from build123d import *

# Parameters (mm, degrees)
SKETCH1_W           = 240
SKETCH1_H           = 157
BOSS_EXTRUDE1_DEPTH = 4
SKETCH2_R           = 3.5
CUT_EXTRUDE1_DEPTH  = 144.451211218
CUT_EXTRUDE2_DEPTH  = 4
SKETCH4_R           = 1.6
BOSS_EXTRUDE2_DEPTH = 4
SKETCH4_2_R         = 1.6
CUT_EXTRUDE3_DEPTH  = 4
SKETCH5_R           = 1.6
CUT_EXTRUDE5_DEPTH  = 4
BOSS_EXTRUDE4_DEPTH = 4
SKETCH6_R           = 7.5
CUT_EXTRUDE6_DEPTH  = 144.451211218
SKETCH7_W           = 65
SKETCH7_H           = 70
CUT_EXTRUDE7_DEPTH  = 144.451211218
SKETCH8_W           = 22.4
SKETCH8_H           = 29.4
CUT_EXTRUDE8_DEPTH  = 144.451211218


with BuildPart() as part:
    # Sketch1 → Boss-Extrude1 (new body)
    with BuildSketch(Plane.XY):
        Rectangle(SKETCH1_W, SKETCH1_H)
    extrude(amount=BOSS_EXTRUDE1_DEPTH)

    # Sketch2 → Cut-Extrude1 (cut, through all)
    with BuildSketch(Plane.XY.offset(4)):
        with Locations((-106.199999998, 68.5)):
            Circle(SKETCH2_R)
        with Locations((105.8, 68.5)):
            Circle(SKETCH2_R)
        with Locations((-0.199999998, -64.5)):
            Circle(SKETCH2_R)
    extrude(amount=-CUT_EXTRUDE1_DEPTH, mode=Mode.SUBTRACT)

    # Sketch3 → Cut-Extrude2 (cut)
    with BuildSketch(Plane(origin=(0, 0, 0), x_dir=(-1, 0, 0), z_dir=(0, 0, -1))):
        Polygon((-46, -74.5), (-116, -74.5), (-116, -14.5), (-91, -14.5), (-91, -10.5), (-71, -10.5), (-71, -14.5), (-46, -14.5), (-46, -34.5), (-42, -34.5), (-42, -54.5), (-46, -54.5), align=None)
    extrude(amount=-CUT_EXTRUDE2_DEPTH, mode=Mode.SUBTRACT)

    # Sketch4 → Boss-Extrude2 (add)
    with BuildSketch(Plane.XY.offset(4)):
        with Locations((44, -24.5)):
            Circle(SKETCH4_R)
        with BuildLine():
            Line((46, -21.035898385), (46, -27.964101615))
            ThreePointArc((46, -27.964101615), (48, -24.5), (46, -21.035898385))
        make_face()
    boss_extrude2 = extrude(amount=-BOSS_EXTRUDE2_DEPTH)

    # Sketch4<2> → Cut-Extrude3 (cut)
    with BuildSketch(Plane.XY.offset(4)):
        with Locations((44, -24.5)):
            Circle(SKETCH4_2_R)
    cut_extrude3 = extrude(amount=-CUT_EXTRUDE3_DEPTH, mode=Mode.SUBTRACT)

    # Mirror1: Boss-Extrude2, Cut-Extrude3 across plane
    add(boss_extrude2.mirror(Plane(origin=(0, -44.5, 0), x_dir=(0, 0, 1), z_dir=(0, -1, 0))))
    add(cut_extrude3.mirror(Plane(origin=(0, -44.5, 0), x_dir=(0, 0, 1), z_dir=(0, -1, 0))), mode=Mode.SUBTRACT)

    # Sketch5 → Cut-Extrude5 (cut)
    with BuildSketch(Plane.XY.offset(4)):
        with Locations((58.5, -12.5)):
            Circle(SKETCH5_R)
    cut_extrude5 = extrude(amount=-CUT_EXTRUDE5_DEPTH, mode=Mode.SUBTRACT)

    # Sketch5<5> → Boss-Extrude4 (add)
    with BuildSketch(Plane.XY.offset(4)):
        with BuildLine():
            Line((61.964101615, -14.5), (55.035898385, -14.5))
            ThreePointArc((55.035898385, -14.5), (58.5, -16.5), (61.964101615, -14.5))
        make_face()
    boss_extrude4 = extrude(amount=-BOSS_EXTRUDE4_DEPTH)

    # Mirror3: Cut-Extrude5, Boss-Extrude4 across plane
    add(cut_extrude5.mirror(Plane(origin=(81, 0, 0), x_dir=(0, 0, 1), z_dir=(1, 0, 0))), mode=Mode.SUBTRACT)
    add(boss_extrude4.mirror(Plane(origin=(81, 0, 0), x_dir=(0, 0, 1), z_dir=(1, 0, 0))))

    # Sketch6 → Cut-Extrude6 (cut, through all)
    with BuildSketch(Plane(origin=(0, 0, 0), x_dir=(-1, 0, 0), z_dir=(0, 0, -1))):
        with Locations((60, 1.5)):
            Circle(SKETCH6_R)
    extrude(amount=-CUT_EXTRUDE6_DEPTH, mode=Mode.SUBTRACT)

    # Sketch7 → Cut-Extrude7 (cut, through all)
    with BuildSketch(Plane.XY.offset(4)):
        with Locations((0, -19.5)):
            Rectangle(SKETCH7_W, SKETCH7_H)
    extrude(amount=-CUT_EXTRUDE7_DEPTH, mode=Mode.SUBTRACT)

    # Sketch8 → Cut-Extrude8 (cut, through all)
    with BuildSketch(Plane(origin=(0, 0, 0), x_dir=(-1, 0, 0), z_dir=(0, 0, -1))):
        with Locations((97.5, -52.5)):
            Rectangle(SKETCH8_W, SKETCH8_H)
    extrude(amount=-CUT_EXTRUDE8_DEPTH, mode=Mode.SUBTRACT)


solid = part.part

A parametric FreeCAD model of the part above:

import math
import FreeCAD as App
import Part
import Sketcher

V = App.Vector
Q = App.Units.Quantity

doc = App.newDocument("Part")
body = doc.addObject("PartDesign::Body", "Body")

sketch1 = body.newObject("Sketcher::SketchObject", "Sketch")
sketch1.AttachmentSupport = (doc.getObject("XY_Plane"), [""])
sketch1.MapMode = "FlatFace"
sketch1.addGeometry(Part.LineSegment(V(-120, 78, 0), V(-120, -78, 0)), False)
sketch1.addGeometry(Part.LineSegment(V(-120, -78, 0), V(120, -78, 0)), False)
sketch1.addGeometry(Part.LineSegment(V(120, -78, 0), V(120, 78, 0)), False)
sketch1.addGeometry(Part.LineSegment(V(120, 78, 0), V(-120, 78, 0)), False)
sketch1.addConstraint(Sketcher.Constraint("Coincident", 0, 2, 1, 1))
sketch1.addConstraint(Sketcher.Constraint("Coincident", 1, 2, 2, 1))
sketch1.addConstraint(Sketcher.Constraint("Coincident", 2, 2, 3, 1))
sketch1.addConstraint(Sketcher.Constraint("Coincident", 3, 2, 0, 1))
sketch1.addConstraint(Sketcher.Constraint("Vertical", 0))
sketch1.addConstraint(Sketcher.Constraint("Horizontal", 1))
sketch1.addConstraint(Sketcher.Constraint("Vertical", 2))
sketch1.addConstraint(Sketcher.Constraint("Horizontal", 3))
sketch1.addConstraint(Sketcher.Constraint("Symmetric", 0, 2, 2, 2, -1, 1))
sketch1.addConstraint(Sketcher.Constraint("DistanceX", 1, 1, 1, 2, Q("240 mm")))
sketch1.addConstraint(Sketcher.Constraint("DistanceY", 0, 2, 0, 1, Q("157 mm")))
pad1 = body.newObject("PartDesign::Pad", "Pad")
pad1.Profile = sketch1
pad1.Length = 4

sketch2 = body.newObject("Sketcher::SketchObject", "Sketch001")
sketch2.AttachmentSupport = (doc.getObject("XY_Plane"), [""])
sketch2.MapMode = "FlatFace"
sketch2.AttachmentOffset = App.Placement(V(0, 0, 4), App.Rotation())
sketch2.addGeometry(Part.Circle(V(-106.2, 68.5, 0), V(0, 0, 1), 3.5), False)
sketch2.addGeometry(Part.Circle(V(105.8, 68.5, 0), V(0, 0, 1), 3.5), False)
sketch2.addGeometry(Part.Circle(V(-0.2, -64.5, 0), V(0, 0, 1), 3.5), False)
sketch2.addConstraint(Sketcher.Constraint("Equal", 0, 1))
sketch2.addConstraint(Sketcher.Constraint("Equal", 1, 2))
sketch2.addConstraint(Sketcher.Constraint("Horizontal", 0, 3, 1, 3))
sketch2.addConstraint(Sketcher.Constraint("Diameter", 0, Q("7 mm")))
sketch2.addConstraint(Sketcher.Constraint("DistanceX", 0, 3, 1, 3, Q("212 mm")))
sketch2.addConstraint(Sketcher.Constraint("DistanceX", 2, 3, 1, 3, Q("106 mm")))
sketch2.addConstraint(Sketcher.Constraint("DistanceY", 2, 3, 1, 3, Q("133 mm")))
sketch2.addConstraint(Sketcher.Constraint("DistanceX", 0, 3, -1, 1, Q("106.2 mm")))
sketch2.addConstraint(Sketcher.Constraint("DistanceY", -1, 1, 0, 3, Q("68.5 mm")))
pocket1 = body.newObject("PartDesign::Pocket", "Pocket")
pocket1.Profile = sketch2
pocket1.Type = "ThroughAll"

sketch3 = body.newObject("Sketcher::SketchObject", "Sketch002")
sketch3.AttachmentSupport = (doc.getObject("XY_Plane"), [""])
sketch3.MapMode = "FlatFace"
sketch3.addGeometry(Part.LineSegment(V(116, -74.5, 0), V(46, -74.5, 0)), False)
sketch3.addGeometry(Part.LineSegment(V(46, -74.5, 0), V(46, -54.5, 0)), False)
sketch3.addGeometry(Part.LineSegment(V(46, -54.5, 0), V(42, -54.5, 0)), False)
sketch3.addGeometry(Part.LineSegment(V(42, -54.5, 0), V(42, -34.5, 0)), False)
sketch3.addGeometry(Part.LineSegment(V(42, -34.5, 0), V(46, -34.5, 0)), False)
sketch3.addGeometry(Part.LineSegment(V(46, -34.5, 0), V(46, -14.5, 0)), False)
sketch3.addGeometry(Part.LineSegment(V(46, -14.5, 0), V(71, -14.5, 0)), False)
sketch3.addGeometry(Part.LineSegment(V(71, -14.5, 0), V(71, -10.5, 0)), False)
sketch3.addGeometry(Part.LineSegment(V(71, -10.5, 0), V(91, -10.5, 0)), False)
sketch3.addGeometry(Part.LineSegment(V(91, -10.5, 0), V(91, -14.5, 0)), False)
sketch3.addGeometry(Part.LineSegment(V(91, -14.5, 0), V(116, -14.5, 0)), False)
sketch3.addGeometry(Part.LineSegment(V(116, -14.5, 0), V(116, -74.5, 0)), False)
sketch3.addConstraint(Sketcher.Constraint("Coincident", 0, 2, 1, 1))
sketch3.addConstraint(Sketcher.Constraint("Coincident", 1, 2, 2, 1))
sketch3.addConstraint(Sketcher.Constraint("Coincident", 2, 2, 3, 1))
sketch3.addConstraint(Sketcher.Constraint("Coincident", 3, 2, 4, 1))
sketch3.addConstraint(Sketcher.Constraint("Coincident", 4, 2, 5, 1))
sketch3.addConstraint(Sketcher.Constraint("Coincident", 5, 2, 6, 1))
sketch3.addConstraint(Sketcher.Constraint("Coincident", 6, 2, 7, 1))
sketch3.addConstraint(Sketcher.Constraint("Coincident", 7, 2, 8, 1))
sketch3.addConstraint(Sketcher.Constraint("Coincident", 8, 2, 9, 1))
sketch3.addConstraint(Sketcher.Constraint("Coincident", 9, 2, 10, 1))
sketch3.addConstraint(Sketcher.Constraint("Coincident", 10, 2, 11, 1))
sketch3.addConstraint(Sketcher.Constraint("Coincident", 11, 2, 0, 1))
sketch3.addConstraint(Sketcher.Constraint("Horizontal", 0))
sketch3.addConstraint(Sketcher.Constraint("Vertical", 1))
sketch3.addConstraint(Sketcher.Constraint("Horizontal", 2))
sketch3.addConstraint(Sketcher.Constraint("Vertical", 3))
sketch3.addConstraint(Sketcher.Constraint("Horizontal", 4))
sketch3.addConstraint(Sketcher.Constraint("Vertical", 5))
sketch3.addConstraint(Sketcher.Constraint("Horizontal", 6))
sketch3.addConstraint(Sketcher.Constraint("Vertical", 7))
sketch3.addConstraint(Sketcher.Constraint("Horizontal", 8))
sketch3.addConstraint(Sketcher.Constraint("Vertical", 9))
sketch3.addConstraint(Sketcher.Constraint("Horizontal", 10))
sketch3.addConstraint(Sketcher.Constraint("Vertical", 11))
sketch3.addConstraint(Sketcher.Constraint("Horizontal", 6, 2, 9, 2))
sketch3.addConstraint(Sketcher.Constraint("Vertical", 1, 2, 4, 2))
sketch3.addConstraint(Sketcher.Constraint("Equal", 6, 10))
sketch3.addConstraint(Sketcher.Constraint("Equal", 8, 1))
sketch3.addConstraint(Sketcher.Constraint("Equal", 1, 3))
sketch3.addConstraint(Sketcher.Constraint("Equal", 3, 5))
sketch3.addConstraint(Sketcher.Constraint("Equal", 4, 7))
sketch3.addConstraint(Sketcher.Constraint("DistanceX", 0, 2, 0, 1, Q("70 mm")))
sketch3.addConstraint(Sketcher.Constraint("DistanceX", 2, 2, 2, 1, Q("4 mm")))
sketch3.addConstraint(Sketcher.Constraint("DistanceX", 6, 1, 6, 2, Q("25 mm")))
sketch3.addConstraint(Sketcher.Constraint("DistanceX", -1, 1, 0, 2, Q("46 mm")))
sketch3.addConstraint(Sketcher.Constraint("DistanceY", 0, 2, -1, 1, Q("74.5 mm")))
pocket2 = body.newObject("PartDesign::Pocket", "Pocket001")
pocket2.Profile = sketch3
pocket2.Length = 4
pocket2.Reversed = True

sketch4 = body.newObject("Sketcher::SketchObject", "Sketch003")
sketch4.AttachmentSupport = (doc.getObject("XY_Plane"), [""])
sketch4.MapMode = "FlatFace"
sketch4.AttachmentOffset = App.Placement(V(0, 0, 4), App.Rotation())
sketch4.addGeometry(Part.Circle(V(44, -24.5, 0), V(0, 0, 1), 1.6), False)
sketch4.addGeometry(Part.LineSegment(V(46, -21, 0), V(46, -28, 0)), False)
sketch4.addGeometry(Part.ArcOfCircle(Part.Circle(V(44, -24.5, 0), V(0, 0, 1), 4), math.radians(-60), math.radians(60)), False)
sketch4.addConstraint(Sketcher.Constraint("Coincident", 1, 1, 2, 2))
sketch4.addConstraint(Sketcher.Constraint("Coincident", 2, 1, 1, 2))
sketch4.addConstraint(Sketcher.Constraint("Vertical", 1))
sketch4.addConstraint(Sketcher.Constraint("Coincident", 2, 3, 0, 3))
sketch4.addConstraint(Sketcher.Constraint("Radius", 2, Q("4 mm")))
sketch4.addConstraint(Sketcher.Constraint("Diameter", 0, Q("3.2 mm")))
sketch4.addConstraint(Sketcher.Constraint("DistanceX", -1, 1, 0, 3, Q("44 mm")))
sketch4.addConstraint(Sketcher.Constraint("DistanceX", -1, 1, 1, 1, Q("46 mm")))
sketch4.addConstraint(Sketcher.Constraint("DistanceY", 0, 3, -1, 1, Q("24.5 mm")))
pad2 = body.newObject("PartDesign::Pad", "Pad001")
pad2.Profile = sketch4
pad2.Length = 4
pad2.Reversed = True

sketch5 = body.newObject("Sketcher::SketchObject", "Sketch004")
sketch5.AttachmentSupport = (doc.getObject("XY_Plane"), [""])
sketch5.MapMode = "FlatFace"
sketch5.AttachmentOffset = App.Placement(V(0, 0, 4), App.Rotation())
sketch5.addGeometry(Part.Circle(V(44, -24.5, 0), V(0, 0, 1), 1.6), False)
sketch5.addConstraint(Sketcher.Constraint("Diameter", 0, Q("3.2 mm")))
sketch5.addConstraint(Sketcher.Constraint("DistanceX", -1, 1, 0, 3, Q("44 mm")))
sketch5.addConstraint(Sketcher.Constraint("DistanceY", 0, 3, -1, 1, Q("24.5 mm")))
pocket3 = body.newObject("PartDesign::Pocket", "Pocket002")
pocket3.Profile = sketch5
pocket3.Length = 4
doc.recompute()

datumplane = body.newObject("PartDesign::Plane", "DatumPlane")
datumplane.AttachmentSupport = (doc.getObject("XZ_Plane"), [""])
datumplane.MapMode = "FlatFace"
datumplane.AttachmentOffset = App.Placement(V(0, 0, 44.5), App.Rotation())
mirrored = body.newObject("PartDesign::Mirrored", "Mirrored")
mirrored.Originals = [pad2, pocket3]
mirrored.MirrorPlane = (datumplane, [""])
body.Tip = mirrored

sketch6 = body.newObject("Sketcher::SketchObject", "Sketch005")
sketch6.AttachmentSupport = (doc.getObject("XY_Plane"), [""])
sketch6.MapMode = "FlatFace"
sketch6.AttachmentOffset = App.Placement(V(0, 0, 4), App.Rotation())
sketch6.addGeometry(Part.Circle(V(58.5, -12.5, 0), V(0, 0, 1), 1.6), False)
sketch6.addConstraint(Sketcher.Constraint("Diameter", 0, Q("3.2 mm")))
sketch6.addConstraint(Sketcher.Constraint("DistanceX", -1, 1, 0, 3, Q("58.5 mm")))
sketch6.addConstraint(Sketcher.Constraint("DistanceY", 0, 3, -1, 1, Q("12.5 mm")))
pocket4 = body.newObject("PartDesign::Pocket", "Pocket003")
pocket4.Profile = sketch6
pocket4.Length = 4

sketch7 = body.newObject("Sketcher::SketchObject", "Sketch006")
sketch7.AttachmentSupport = (doc.getObject("XY_Plane"), [""])
sketch7.MapMode = "FlatFace"
sketch7.AttachmentOffset = App.Placement(V(0, 0, 4), App.Rotation())
sketch7.addGeometry(Part.LineSegment(V(62, -14.5, 0), V(55, -14.5, 0)), False)
sketch7.addGeometry(Part.ArcOfCircle(Part.Circle(V(58.5, -12.5, 0), V(0, 0, 1), 4), math.radians(-150), math.radians(-30)), False)
sketch7.addConstraint(Sketcher.Constraint("Coincident", 0, 1, 1, 2))
sketch7.addConstraint(Sketcher.Constraint("Coincident", 1, 1, 0, 2))
sketch7.addConstraint(Sketcher.Constraint("Horizontal", 0))
sketch7.addConstraint(Sketcher.Constraint("Radius", 1, Q("4 mm")))
sketch7.addConstraint(Sketcher.Constraint("DistanceY", 0, 1, 1, 3, Q("2 mm")))
sketch7.addConstraint(Sketcher.Constraint("DistanceX", -1, 1, 1, 3, Q("58.5 mm")))
sketch7.addConstraint(Sketcher.Constraint("DistanceY", 1, 3, -1, 1, Q("12.5 mm")))
pad3 = body.newObject("PartDesign::Pad", "Pad002")
pad3.Profile = sketch7
pad3.Length = 4
pad3.Reversed = True
doc.recompute()

datumplane2 = body.newObject("PartDesign::Plane", "DatumPlane001")
datumplane2.AttachmentSupport = (doc.getObject("YZ_Plane"), [""])
datumplane2.MapMode = "FlatFace"
datumplane2.AttachmentOffset = App.Placement(V(0, 0, 81), App.Rotation())
mirrored2 = body.newObject("PartDesign::Mirrored", "Mirrored001")
mirrored2.Originals = [pocket4, pad3]
mirrored2.MirrorPlane = (datumplane2, [""])
body.Tip = mirrored2

sketch8 = body.newObject("Sketcher::SketchObject", "Sketch007")
sketch8.AttachmentSupport = (doc.getObject("XY_Plane"), [""])
sketch8.MapMode = "FlatFace"
sketch8.addGeometry(Part.Circle(V(-60, 2, 0), V(0, 0, 1), 8), False)
sketch8.addConstraint(Sketcher.Constraint("Diameter", 0, Q("15 mm")))
sketch8.addConstraint(Sketcher.Constraint("DistanceX", 0, 3, -1, 1, Q("60 mm")))
sketch8.addConstraint(Sketcher.Constraint("DistanceY", -1, 1, 0, 3, Q("1.5 mm")))
pocket5 = body.newObject("PartDesign::Pocket", "Pocket004")
pocket5.Profile = sketch8
pocket5.Type = "ThroughAll"
pocket5.Reversed = True

sketch9 = body.newObject("Sketcher::SketchObject", "Sketch008")
sketch9.AttachmentSupport = (doc.getObject("XY_Plane"), [""])
sketch9.MapMode = "FlatFace"
sketch9.AttachmentOffset = App.Placement(V(0, 0, 4), App.Rotation())
sketch9.addGeometry(Part.LineSegment(V(-32, 16, 0), V(-32, -54, 0)), False)
sketch9.addGeometry(Part.LineSegment(V(-32, -54, 0), V(32, -54, 0)), False)
sketch9.addGeometry(Part.LineSegment(V(32, -54, 0), V(32, 16, 0)), False)
sketch9.addGeometry(Part.LineSegment(V(32, 16, 0), V(-32, 16, 0)), False)
sketch9.addConstraint(Sketcher.Constraint("Coincident", 0, 2, 1, 1))
sketch9.addConstraint(Sketcher.Constraint("Coincident", 1, 2, 2, 1))
sketch9.addConstraint(Sketcher.Constraint("Coincident", 2, 2, 3, 1))
sketch9.addConstraint(Sketcher.Constraint("Coincident", 3, 2, 0, 1))
sketch9.addConstraint(Sketcher.Constraint("Vertical", 0))
sketch9.addConstraint(Sketcher.Constraint("Horizontal", 1))
sketch9.addConstraint(Sketcher.Constraint("Vertical", 2))
sketch9.addConstraint(Sketcher.Constraint("Horizontal", 3))
sketch9.addConstraint(Sketcher.Constraint("DistanceX", 1, 1, 1, 2, Q("65 mm")))
sketch9.addConstraint(Sketcher.Constraint("DistanceY", 0, 2, 0, 1, Q("70 mm")))
sketch9.addConstraint(Sketcher.Constraint("DistanceX", 0, 2, -1, 1, Q("32.5 mm")))
sketch9.addConstraint(Sketcher.Constraint("DistanceY", 0, 2, -1, 1, Q("54.5 mm")))
pocket6 = body.newObject("PartDesign::Pocket", "Pocket005")
pocket6.Profile = sketch9
pocket6.Type = "ThroughAll"

sketch10 = body.newObject("Sketcher::SketchObject", "Sketch009")
sketch10.AttachmentSupport = (doc.getObject("XY_Plane"), [""])
sketch10.MapMode = "FlatFace"
sketch10.addGeometry(Part.LineSegment(V(-86, -38, 0), V(-86, -67, 0)), False)
sketch10.addGeometry(Part.LineSegment(V(-86, -67, 0), V(-109, -67, 0)), False)
sketch10.addGeometry(Part.LineSegment(V(-109, -67, 0), V(-109, -38, 0)), False)
sketch10.addGeometry(Part.LineSegment(V(-109, -38, 0), V(-86, -38, 0)), False)
sketch10.addConstraint(Sketcher.Constraint("Coincident", 0, 2, 1, 1))
sketch10.addConstraint(Sketcher.Constraint("Coincident", 1, 2, 2, 1))
sketch10.addConstraint(Sketcher.Constraint("Coincident", 2, 2, 3, 1))
sketch10.addConstraint(Sketcher.Constraint("Coincident", 3, 2, 0, 1))
sketch10.addConstraint(Sketcher.Constraint("Vertical", 0))
sketch10.addConstraint(Sketcher.Constraint("Horizontal", 1))
sketch10.addConstraint(Sketcher.Constraint("Vertical", 2))
sketch10.addConstraint(Sketcher.Constraint("Horizontal", 3))
sketch10.addConstraint(Sketcher.Constraint("DistanceX", 1, 2, 1, 1, Q("22.4 mm")))
sketch10.addConstraint(Sketcher.Constraint("DistanceY", 0, 2, 0, 1, Q("29.4 mm")))
sketch10.addConstraint(Sketcher.Constraint("DistanceX", 0, 2, -1, 1, Q("86.3 mm")))
sketch10.addConstraint(Sketcher.Constraint("DistanceY", 0, 2, -1, 1, Q("67.2 mm")))
pocket7 = body.newObject("PartDesign::Pocket", "Pocket006")
pocket7.Profile = sketch10
pocket7.Type = "ThroughAll"
pocket7.Reversed = True

doc.recompute()
